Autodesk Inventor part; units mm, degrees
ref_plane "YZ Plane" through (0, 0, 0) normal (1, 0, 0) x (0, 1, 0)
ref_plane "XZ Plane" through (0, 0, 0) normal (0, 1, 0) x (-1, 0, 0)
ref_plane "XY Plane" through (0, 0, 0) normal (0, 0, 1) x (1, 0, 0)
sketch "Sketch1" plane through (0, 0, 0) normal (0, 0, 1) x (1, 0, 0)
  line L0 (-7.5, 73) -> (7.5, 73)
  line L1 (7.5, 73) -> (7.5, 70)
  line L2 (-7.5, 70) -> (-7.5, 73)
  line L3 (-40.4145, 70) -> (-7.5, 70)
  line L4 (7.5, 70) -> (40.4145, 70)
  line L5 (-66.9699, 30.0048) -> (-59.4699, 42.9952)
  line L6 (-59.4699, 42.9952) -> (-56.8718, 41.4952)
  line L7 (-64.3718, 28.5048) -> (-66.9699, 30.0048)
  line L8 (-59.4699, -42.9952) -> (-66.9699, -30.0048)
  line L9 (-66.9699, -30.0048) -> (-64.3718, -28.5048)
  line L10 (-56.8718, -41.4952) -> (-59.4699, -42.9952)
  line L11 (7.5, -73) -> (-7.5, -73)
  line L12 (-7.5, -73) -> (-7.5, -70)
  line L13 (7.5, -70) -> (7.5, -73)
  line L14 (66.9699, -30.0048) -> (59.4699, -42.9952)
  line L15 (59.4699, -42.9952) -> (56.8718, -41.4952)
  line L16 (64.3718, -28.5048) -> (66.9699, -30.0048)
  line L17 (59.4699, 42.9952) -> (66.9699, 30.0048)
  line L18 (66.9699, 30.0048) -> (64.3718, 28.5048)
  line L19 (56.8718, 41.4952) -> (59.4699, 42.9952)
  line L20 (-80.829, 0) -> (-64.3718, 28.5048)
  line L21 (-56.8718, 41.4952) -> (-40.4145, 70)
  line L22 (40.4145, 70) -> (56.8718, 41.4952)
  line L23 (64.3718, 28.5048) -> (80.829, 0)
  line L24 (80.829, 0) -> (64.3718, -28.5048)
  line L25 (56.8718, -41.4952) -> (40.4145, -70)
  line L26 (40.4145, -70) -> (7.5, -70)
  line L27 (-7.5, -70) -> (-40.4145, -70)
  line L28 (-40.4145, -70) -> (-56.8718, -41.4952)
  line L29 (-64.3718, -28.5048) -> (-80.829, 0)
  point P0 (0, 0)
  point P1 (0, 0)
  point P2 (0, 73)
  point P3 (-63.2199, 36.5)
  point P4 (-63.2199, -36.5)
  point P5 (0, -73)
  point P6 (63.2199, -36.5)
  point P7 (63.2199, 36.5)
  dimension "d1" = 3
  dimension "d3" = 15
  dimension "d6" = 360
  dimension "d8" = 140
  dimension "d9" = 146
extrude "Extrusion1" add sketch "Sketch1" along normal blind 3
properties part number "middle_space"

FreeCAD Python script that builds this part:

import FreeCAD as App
import Part
import Sketcher
from FreeCAD import Vector
Q = App.Units.Quantity


def add_polygon(sketch, points):
    """Adds a closed chain of lines whose ends are joined by coincident constraints."""
    first, n = sketch.GeometryCount, len(points)
    for a, b in zip(points, points[1:] + points[:1]):
        sketch.addGeometry(Part.LineSegment(App.Vector(*a, 0), App.Vector(*b, 0)), False)
    for i in range(n):
        sketch.addConstraint(Sketcher.Constraint("Coincident", first + i, 2, first + (i + 1) % n, 1))

doc = App.newDocument("Part")
body = doc.addObject("PartDesign::Body", "Body")

sketch1 = body.newObject("Sketcher::SketchObject", "Sketch")
sketch1.AttachmentSupport = (doc.getObject("XY_Plane"), [""])
sketch1.MapMode = "FlatFace"
add_polygon(sketch1, [(7.5, 73), (-7.5, 73), (-7.5, 70), (-40.4145, 70), (-56.8718, 41.4952), (-59.4699, 42.9952), (-66.9699, 30.0048), (-64.3718, 28.5048), (-80.829, 0), (-64.3718, -28.5048), (-66.9699, -30.0048), (-59.4699, -42.9952), (-56.8718, -41.4952), (-40.4145, -70), (-7.5, -70), (-7.5, -73), (7.5, -73), (7.5, -70), (40.4145, -70), (56.8718, -41.4952), (59.4699, -42.9952), (66.9699, -30.0048), (64.3718, -28.5048), (80.829, 0), (64.3718, 28.5048), (66.9699, 30.0048), (59.4699, 42.9952), (56.8718, 41.4952), (40.4145, 70), (7.5, 70)])
sketch1.addConstraint(Sketcher.Constraint("Horizontal", 0))
sketch1.addConstraint(Sketcher.Constraint("Vertical", 1))
sketch1.addConstraint(Sketcher.Constraint("Horizontal", 2))
sketch1.addConstraint(Sketcher.Constraint("Horizontal", 13))
sketch1.addConstraint(Sketcher.Constraint("Vertical", 14))
sketch1.addConstraint(Sketcher.Constraint("Horizontal", 15))
sketch1.addConstraint(Sketcher.Constraint("Vertical", 16))
sketch1.addConstraint(Sketcher.Constraint("Horizontal", 17))
sketch1.addConstraint(Sketcher.Constraint("Horizontal", 28))
sketch1.addConstraint(Sketcher.Constraint("Vertical", 29))
sketch1.addConstraint(Sketcher.Constraint("Symmetric", 0, 2, 15, 2, -1, 1))
sketch1.addConstraint(Sketcher.Constraint("Symmetric", 2, 2, 17, 2, -1, 1))
sketch1.addConstraint(Sketcher.Constraint("Symmetric", 3, 2, 18, 2, -1, 1))
sketch1.addConstraint(Sketcher.Constraint("Symmetric", 4, 2, 19, 2, -1, 1))
sketch1.addConstraint(Sketcher.Constraint("Symmetric", 5, 2, 20, 2, -1, 1))
sketch1.addConstraint(Sketcher.Constraint("Symmetric", 6, 2, 21, 2, -1, 1))
sketch1.addConstraint(Sketcher.Constraint("Symmetric", 7, 2, 22, 2, -1, 1))
sketch1.addConstraint(Sketcher.Constraint("Symmetric", 8, 2, 23, 2, -1, 1))
sketch1.addConstraint(Sketcher.Constraint("Symmetric", 9, 2, 24, 2, -1, 1))
sketch1.addConstraint(Sketcher.Constraint("Symmetric", 10, 2, 25, 2, -1, 1))
sketch1.addConstraint(Sketcher.Constraint("Symmetric", 11, 2, 26, 2, -1, 1))
sketch1.addConstraint(Sketcher.Constraint("Symmetric", 12, 2, 27, 2, -1, 1))
sketch1.addConstraint(Sketcher.Constraint("Symmetric", 13, 2, 16, 2, -2))
sketch1.addConstraint(Sketcher.Constraint("Symmetric", 11, 2, 18, 2, -2))
sketch1.addConstraint(Sketcher.Constraint("Symmetric", 10, 2, 19, 2, -2))
sketch1.addConstraint(Sketcher.Constraint("Symmetric", 9, 2, 20, 2, -2))
sketch1.addConstraint(Sketcher.Constraint("Symmetric", 8, 2, 21, 2, -2))
sketch1.addConstraint(Sketcher.Constraint("PointOnObject", 7, 2, -1))
sketch1.addConstraint(Sketcher.Constraint("Perpendicular", 3, 4))
sketch1.addConstraint(Sketcher.Constraint("Perpendicular", 4, 5))
sketch1.addConstraint(Sketcher.Constraint("Perpendicular", 5, 6))
sketch1.addConstraint(Sketcher.Constraint("Perpendicular", 6, 7))
sketch1.addConstraint(Sketcher.Constraint("Perpendicular", 11, 12))
sketch1.addConstraint(Sketcher.Constraint("Vertical", 16, 2, 28, 2))
sketch1.addConstraint(Sketcher.Constraint("Equal", 4, 6))
sketch1.addConstraint(Sketcher.Constraint("Equal", 3, 7))
sketch1.addConstraint(Sketcher.Constraint("DistanceX", 0, 2, 0, 1, 15.0))
sketch1.addConstraint(Sketcher.Constraint("DistanceY", 1, 2, 1, 1, 3.0))
sketch1.addConstraint(Sketcher.Constraint("Distance", 4, 3.0))
sketch1.addConstraint(Sketcher.Constraint("Distance", 5, 15.0))
sketch1.addConstraint(Sketcher.Constraint("Angle", 3, Q("-120 deg")))
sketch1.addConstraint(Sketcher.Constraint("DistanceY", -1, 1, 0, 2, 73.0))
sketch1.addConstraint(Sketcher.Constraint("DistanceX", 4, 2, -1, 1, 59.47))
pad1 = body.newObject("PartDesign::Pad", "Pad")
pad1.Profile = sketch1
pad1.Length = 3

doc.recompute()
